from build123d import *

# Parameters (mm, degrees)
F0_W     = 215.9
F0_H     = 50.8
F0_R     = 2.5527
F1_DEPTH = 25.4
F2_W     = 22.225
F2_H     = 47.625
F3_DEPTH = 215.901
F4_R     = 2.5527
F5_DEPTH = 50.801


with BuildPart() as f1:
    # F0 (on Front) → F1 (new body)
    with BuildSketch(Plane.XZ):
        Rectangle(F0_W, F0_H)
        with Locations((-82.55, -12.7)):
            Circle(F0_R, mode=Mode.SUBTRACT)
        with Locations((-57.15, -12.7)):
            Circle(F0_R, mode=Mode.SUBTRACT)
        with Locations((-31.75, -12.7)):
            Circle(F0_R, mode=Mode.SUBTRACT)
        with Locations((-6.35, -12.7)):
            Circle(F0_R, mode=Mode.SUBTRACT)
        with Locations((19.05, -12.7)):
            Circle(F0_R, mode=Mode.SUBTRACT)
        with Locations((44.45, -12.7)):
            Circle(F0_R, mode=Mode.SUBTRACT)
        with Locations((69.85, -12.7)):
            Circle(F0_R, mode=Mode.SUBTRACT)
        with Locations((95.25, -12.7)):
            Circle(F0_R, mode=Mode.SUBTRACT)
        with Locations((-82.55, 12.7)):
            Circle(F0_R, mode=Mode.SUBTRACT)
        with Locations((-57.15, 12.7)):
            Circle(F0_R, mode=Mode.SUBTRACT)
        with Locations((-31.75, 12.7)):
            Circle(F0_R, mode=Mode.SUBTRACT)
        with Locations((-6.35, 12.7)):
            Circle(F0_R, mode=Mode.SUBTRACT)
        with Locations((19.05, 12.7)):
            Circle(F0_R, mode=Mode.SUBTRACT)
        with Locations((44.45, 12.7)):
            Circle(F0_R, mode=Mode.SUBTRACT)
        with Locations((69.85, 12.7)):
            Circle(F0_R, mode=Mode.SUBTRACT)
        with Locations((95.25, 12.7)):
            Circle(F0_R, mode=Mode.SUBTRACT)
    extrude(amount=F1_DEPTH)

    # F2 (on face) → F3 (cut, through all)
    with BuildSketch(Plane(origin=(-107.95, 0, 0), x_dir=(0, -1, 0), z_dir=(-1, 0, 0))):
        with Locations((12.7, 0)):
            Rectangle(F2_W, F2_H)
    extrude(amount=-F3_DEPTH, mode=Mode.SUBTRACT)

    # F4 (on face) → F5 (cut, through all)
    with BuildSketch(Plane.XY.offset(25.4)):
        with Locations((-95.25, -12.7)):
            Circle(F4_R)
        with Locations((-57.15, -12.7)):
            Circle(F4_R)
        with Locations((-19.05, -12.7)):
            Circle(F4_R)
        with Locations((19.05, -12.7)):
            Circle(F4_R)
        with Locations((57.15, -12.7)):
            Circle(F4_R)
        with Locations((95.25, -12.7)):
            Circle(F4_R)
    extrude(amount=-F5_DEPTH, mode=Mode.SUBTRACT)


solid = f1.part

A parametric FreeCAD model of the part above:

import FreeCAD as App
import Part
import Sketcher
Q = App.Units.Quantity

doc = App.newDocument("Part")
body = doc.addObject("PartDesign::Body", "Body")

# Sketch on XZ plane
sketch1 = body.newObject("Sketcher::SketchObject", "Sketch")
sketch1.AttachmentSupport = (doc.getObject("XZ_Plane"), [""])
sketch1.MapMode = "FlatFace"
sketch1.addGeometry([
    Part.LineSegment(App.Vector(-108, 25.4, 0), App.Vector(-108, -25.4, 0)),  # 0
    Part.LineSegment(App.Vector(-108, -25.4, 0), App.Vector(108, -25.4, 0)),  # 1
    Part.LineSegment(App.Vector(108, -25.4, 0), App.Vector(108, 25.4, 0)),  # 2
    Part.LineSegment(App.Vector(108, 25.4, 0), App.Vector(-108, 25.4, 0)),  # 3
    Part.Circle(App.Vector(-82.5, -12.7, 0), App.Vector(0, 0, 1), 2.6),  # 4
    Part.Circle(App.Vector(-57.1, -12.7, 0), App.Vector(0, 0, 1), 2.6),  # 5
    Part.Circle(App.Vector(-31.8, -12.7, 0), App.Vector(0, 0, 1), 2.6),  # 6
    Part.Circle(App.Vector(-6.3, -12.7, 0), App.Vector(0, 0, 1), 2.6),  # 7
    Part.Circle(App.Vector(19.1, -12.7, 0), App.Vector(0, 0, 1), 2.6),  # 8
    Part.Circle(App.Vector(44.5, -12.7, 0), App.Vector(0, 0, 1), 2.6),  # 9
    Part.Circle(App.Vector(69.8, -12.7, 0), App.Vector(0, 0, 1), 2.6),  # 10
    Part.Circle(App.Vector(95.2, -12.7, 0), App.Vector(0, 0, 1), 2.6),  # 11
    Part.Circle(App.Vector(-82.5, 12.7, 0), App.Vector(0, 0, 1), 2.6),  # 12
    Part.Circle(App.Vector(-57.1, 12.7, 0), App.Vector(0, 0, 1), 2.6),  # 13
    Part.Circle(App.Vector(-31.8, 12.7, 0), App.Vector(0, 0, 1), 2.6),  # 14
    Part.Circle(App.Vector(-6.3, 12.7, 0), App.Vector(0, 0, 1), 2.6),  # 15
    Part.Circle(App.Vector(19.1, 12.7, 0), App.Vector(0, 0, 1), 2.6),  # 16
    Part.Circle(App.Vector(44.5, 12.7, 0), App.Vector(0, 0, 1), 2.6),  # 17
    Part.Circle(App.Vector(69.8, 12.7, 0), App.Vector(0, 0, 1), 2.6),  # 18
    Part.Circle(App.Vector(95.2, 12.7, 0), App.Vector(0, 0, 1), 2.6),  # 19
], False)
sketch1.addConstraint([
    Sketcher.Constraint("Coincident", 0, 2, 1, 1),
    Sketcher.Constraint("Coincident", 1, 2, 2, 1),
    Sketcher.Constraint("Coincident", 2, 2, 3, 1),
    Sketcher.Constraint("Coincident", 3, 2, 0, 1),
    Sketcher.Constraint("Vertical", 0),
    Sketcher.Constraint("Horizontal", 1),
    Sketcher.Constraint("Vertical", 2),
    Sketcher.Constraint("Horizontal", 3),
    Sketcher.Constraint("Equal", 4, 5),
    Sketcher.Constraint("Equal", 5, 6),
    Sketcher.Constraint("Equal", 6, 7),
    Sketcher.Constraint("Equal", 7, 8),
    Sketcher.Constraint("Equal", 8, 9),
    Sketcher.Constraint("Equal", 9, 10),
    Sketcher.Constraint("Equal", 10, 11),
    Sketcher.Constraint("Equal", 11, 12),
    Sketcher.Constraint("Equal", 12, 13),
    Sketcher.Constraint("Equal", 13, 14),
    Sketcher.Constraint("Equal", 14, 15),
    Sketcher.Constraint("Equal", 15, 16),
    Sketcher.Constraint("Equal", 16, 17),
    Sketcher.Constraint("Equal", 17, 18),
    Sketcher.Constraint("Equal", 18, 19),
    Sketcher.Constraint("Symmetric", 0, 2, 2, 2, -1, 1),
    Sketcher.Constraint("Symmetric", 4, 3, 12, 3, -1),
    Sketcher.Constraint("Symmetric", 5, 3, 13, 3, -1),
    Sketcher.Constraint("Symmetric", 6, 3, 14, 3, -1),
    Sketcher.Constraint("Symmetric", 7, 3, 15, 3, -1),
    Sketcher.Constraint("Symmetric", 8, 3, 16, 3, -1),
    Sketcher.Constraint("Symmetric", 9, 3, 17, 3, -1),
    Sketcher.Constraint("Symmetric", 10, 3, 18, 3, -1),
    Sketcher.Constraint("Symmetric", 11, 3, 19, 3, -1),
    Sketcher.Constraint("Horizontal", 4, 3, 5, 3),
    Sketcher.Constraint("Horizontal", 5, 3, 6, 3),
    Sketcher.Constraint("Horizontal", 6, 3, 7, 3),
    Sketcher.Constraint("Horizontal", 7, 3, 8, 3),
    Sketcher.Constraint("Horizontal", 8, 3, 9, 3),
    Sketcher.Constraint("Horizontal", 9, 3, 10, 3),
    Sketcher.Constraint("Horizontal", 10, 3, 11, 3),
    Sketcher.Constraint("DistanceY", 0, 2, 0, 1, Q("2 in")),
    Sketcher.Constraint("Diameter", 4, Q("0.201 in")),
    Sketcher.Constraint("DistanceX", 1, 1, 1, 2, Q("8.5 in")),
    Sketcher.Constraint("DistanceX", 4, 3, 5, 3, Q("1 in")),
    Sketcher.Constraint("DistanceX", 5, 3, 6, 3, Q("1 in")),
    Sketcher.Constraint("DistanceX", 6, 3, 7, 3, Q("1 in")),
    Sketcher.Constraint("DistanceX", 7, 3, 8, 3, Q("1 in")),
    Sketcher.Constraint("DistanceX", 8, 3, 9, 3, Q("1 in")),
    Sketcher.Constraint("DistanceX", 9, 3, 10, 3, Q("1 in")),
    Sketcher.Constraint("DistanceX", 10, 3, 11, 3, Q("1 in")),
    Sketcher.Constraint("DistanceY", 4, 3, 12, 3, Q("1 in")),
    Sketcher.Constraint("DistanceX", 0, 2, 4, 3, Q("1 in")),
])
pad1 = body.newObject("PartDesign::Pad", "Pad")
pad1.Profile = sketch1
pad1.Length = Q("1 in")

# Sketch on YZ plane
sketch2 = body.newObject("Sketcher::SketchObject", "Sketch001")
sketch2.AttachmentSupport = (doc.getObject("YZ_Plane"), [""])
sketch2.MapMode = "FlatFace"
sketch2.AttachmentOffset = App.Placement(App.Vector(0, 0, -4.25 * 25.4), App.Rotation())
sketch2.addGeometry([
    Part.LineSegment(App.Vector(-2, 24, 0), App.Vector(-2, -24, 0)),
    Part.LineSegment(App.Vector(-2, -24, 0), App.Vector(-24, -24, 0)),
    Part.LineSegment(App.Vector(-24, -24, 0), App.Vector(-24, 24, 0)),
    Part.LineSegment(App.Vector(-24, 24, 0), App.Vector(-2, 24, 0)),
], False)
sketch2.addConstraint([
    Sketcher.Constraint("Coincident", 0, 2, 1, 1),
    Sketcher.Constraint("Coincident", 1, 2, 2, 1),
    Sketcher.Constraint("Coincident", 2, 2, 3, 1),
    Sketcher.Constraint("Coincident", 3, 2, 0, 1),
    Sketcher.Constraint("Vertical", 0),
    Sketcher.Constraint("Horizontal", 1),
    Sketcher.Constraint("Vertical", 2),
    Sketcher.Constraint("Horizontal", 3),
    Sketcher.Constraint("DistanceX", 1, 2, 1, 1, Q("0.875 in")),
    Sketcher.Constraint("DistanceY", 0, 2, 0, 1, Q("1.875 in")),
    Sketcher.Constraint("DistanceX", 0, 2, -1, 1, Q("0.0625 in")),
    Sketcher.Constraint("DistanceY", 0, 2, -1, 1, Q("0.9375 in")),
])
pocket1 = body.newObject("PartDesign::Pocket", "Pocket")
pocket1.Profile = sketch2
pocket1.Type = "ThroughAll"
pocket1.Reversed = True

# Sketch on XY plane
sketch3 = body.newObject("Sketcher::SketchObject", "Sketch002")
sketch3.AttachmentSupport = (doc.getObject("XY_Plane"), [""])
sketch3.MapMode = "FlatFace"
sketch3.AttachmentOffset = App.Placement(App.Vector(0, 0, 1 * 25.4), App.Rotation())
sketch3.addGeometry([
    Part.Circle(App.Vector(-95.2, -12.7, 0), App.Vector(0, 0, 1), 2.6),  # 0
    Part.Circle(App.Vector(-57.1, -12.7, 0), App.Vector(0, 0, 1), 2.6),  # 1
    Part.Circle(App.Vector(-19.1, -12.7, 0), App.Vector(0, 0, 1), 2.6),  # 2
    Part.Circle(App.Vector(19.1, -12.7, 0), App.Vector(0, 0, 1), 2.6),  # 3
    Part.Circle(App.Vector(57.1, -12.7, 0), App.Vector(0, 0, 1), 2.6),  # 4
    Part.Circle(App.Vector(95.2, -12.7, 0), App.Vector(0, 0, 1), 2.6),  # 5
], False)
sketch3.addConstraint([
    Sketcher.Constraint("Equal", 0, 1),
    Sketcher.Constraint("Equal", 1, 2),
    Sketcher.Constraint("Equal", 2, 3),
    Sketcher.Constraint("Equal", 3, 4),
    Sketcher.Constraint("Equal", 4, 5),
    Sketcher.Constraint("Symmetric", 2, 3, 3, 3, -2),
    Sketcher.Constraint("Symmetric", 1, 3, 4, 3, -2),
    Sketcher.Constraint("Symmetric", 0, 3, 5, 3, -2),
    Sketcher.Constraint("Horizontal", 0, 3, 1, 3),
    Sketcher.Constraint("Horizontal", 1, 3, 2, 3),
    Sketcher.Constraint("Diameter", 0, Q("0.201 in")),
    Sketcher.Constraint("DistanceX", 0, 3, 2, 3, Q("3 in")),
    Sketcher.Constraint("DistanceX", 1, 3, 3, 3, Q("3 in")),
    Sketcher.Constraint("DistanceY", 0, 3, -1, 1, Q("0.5 in")),
    Sketcher.Constraint("DistanceX", 0, 3, 1, 3, Q("1.5 in")),
])
pocket2 = body.newObject("PartDesign::Pocket", "Pocket001")
pocket2.Profile = sketch3
pocket2.Type = "ThroughAll"

doc.recompute()
